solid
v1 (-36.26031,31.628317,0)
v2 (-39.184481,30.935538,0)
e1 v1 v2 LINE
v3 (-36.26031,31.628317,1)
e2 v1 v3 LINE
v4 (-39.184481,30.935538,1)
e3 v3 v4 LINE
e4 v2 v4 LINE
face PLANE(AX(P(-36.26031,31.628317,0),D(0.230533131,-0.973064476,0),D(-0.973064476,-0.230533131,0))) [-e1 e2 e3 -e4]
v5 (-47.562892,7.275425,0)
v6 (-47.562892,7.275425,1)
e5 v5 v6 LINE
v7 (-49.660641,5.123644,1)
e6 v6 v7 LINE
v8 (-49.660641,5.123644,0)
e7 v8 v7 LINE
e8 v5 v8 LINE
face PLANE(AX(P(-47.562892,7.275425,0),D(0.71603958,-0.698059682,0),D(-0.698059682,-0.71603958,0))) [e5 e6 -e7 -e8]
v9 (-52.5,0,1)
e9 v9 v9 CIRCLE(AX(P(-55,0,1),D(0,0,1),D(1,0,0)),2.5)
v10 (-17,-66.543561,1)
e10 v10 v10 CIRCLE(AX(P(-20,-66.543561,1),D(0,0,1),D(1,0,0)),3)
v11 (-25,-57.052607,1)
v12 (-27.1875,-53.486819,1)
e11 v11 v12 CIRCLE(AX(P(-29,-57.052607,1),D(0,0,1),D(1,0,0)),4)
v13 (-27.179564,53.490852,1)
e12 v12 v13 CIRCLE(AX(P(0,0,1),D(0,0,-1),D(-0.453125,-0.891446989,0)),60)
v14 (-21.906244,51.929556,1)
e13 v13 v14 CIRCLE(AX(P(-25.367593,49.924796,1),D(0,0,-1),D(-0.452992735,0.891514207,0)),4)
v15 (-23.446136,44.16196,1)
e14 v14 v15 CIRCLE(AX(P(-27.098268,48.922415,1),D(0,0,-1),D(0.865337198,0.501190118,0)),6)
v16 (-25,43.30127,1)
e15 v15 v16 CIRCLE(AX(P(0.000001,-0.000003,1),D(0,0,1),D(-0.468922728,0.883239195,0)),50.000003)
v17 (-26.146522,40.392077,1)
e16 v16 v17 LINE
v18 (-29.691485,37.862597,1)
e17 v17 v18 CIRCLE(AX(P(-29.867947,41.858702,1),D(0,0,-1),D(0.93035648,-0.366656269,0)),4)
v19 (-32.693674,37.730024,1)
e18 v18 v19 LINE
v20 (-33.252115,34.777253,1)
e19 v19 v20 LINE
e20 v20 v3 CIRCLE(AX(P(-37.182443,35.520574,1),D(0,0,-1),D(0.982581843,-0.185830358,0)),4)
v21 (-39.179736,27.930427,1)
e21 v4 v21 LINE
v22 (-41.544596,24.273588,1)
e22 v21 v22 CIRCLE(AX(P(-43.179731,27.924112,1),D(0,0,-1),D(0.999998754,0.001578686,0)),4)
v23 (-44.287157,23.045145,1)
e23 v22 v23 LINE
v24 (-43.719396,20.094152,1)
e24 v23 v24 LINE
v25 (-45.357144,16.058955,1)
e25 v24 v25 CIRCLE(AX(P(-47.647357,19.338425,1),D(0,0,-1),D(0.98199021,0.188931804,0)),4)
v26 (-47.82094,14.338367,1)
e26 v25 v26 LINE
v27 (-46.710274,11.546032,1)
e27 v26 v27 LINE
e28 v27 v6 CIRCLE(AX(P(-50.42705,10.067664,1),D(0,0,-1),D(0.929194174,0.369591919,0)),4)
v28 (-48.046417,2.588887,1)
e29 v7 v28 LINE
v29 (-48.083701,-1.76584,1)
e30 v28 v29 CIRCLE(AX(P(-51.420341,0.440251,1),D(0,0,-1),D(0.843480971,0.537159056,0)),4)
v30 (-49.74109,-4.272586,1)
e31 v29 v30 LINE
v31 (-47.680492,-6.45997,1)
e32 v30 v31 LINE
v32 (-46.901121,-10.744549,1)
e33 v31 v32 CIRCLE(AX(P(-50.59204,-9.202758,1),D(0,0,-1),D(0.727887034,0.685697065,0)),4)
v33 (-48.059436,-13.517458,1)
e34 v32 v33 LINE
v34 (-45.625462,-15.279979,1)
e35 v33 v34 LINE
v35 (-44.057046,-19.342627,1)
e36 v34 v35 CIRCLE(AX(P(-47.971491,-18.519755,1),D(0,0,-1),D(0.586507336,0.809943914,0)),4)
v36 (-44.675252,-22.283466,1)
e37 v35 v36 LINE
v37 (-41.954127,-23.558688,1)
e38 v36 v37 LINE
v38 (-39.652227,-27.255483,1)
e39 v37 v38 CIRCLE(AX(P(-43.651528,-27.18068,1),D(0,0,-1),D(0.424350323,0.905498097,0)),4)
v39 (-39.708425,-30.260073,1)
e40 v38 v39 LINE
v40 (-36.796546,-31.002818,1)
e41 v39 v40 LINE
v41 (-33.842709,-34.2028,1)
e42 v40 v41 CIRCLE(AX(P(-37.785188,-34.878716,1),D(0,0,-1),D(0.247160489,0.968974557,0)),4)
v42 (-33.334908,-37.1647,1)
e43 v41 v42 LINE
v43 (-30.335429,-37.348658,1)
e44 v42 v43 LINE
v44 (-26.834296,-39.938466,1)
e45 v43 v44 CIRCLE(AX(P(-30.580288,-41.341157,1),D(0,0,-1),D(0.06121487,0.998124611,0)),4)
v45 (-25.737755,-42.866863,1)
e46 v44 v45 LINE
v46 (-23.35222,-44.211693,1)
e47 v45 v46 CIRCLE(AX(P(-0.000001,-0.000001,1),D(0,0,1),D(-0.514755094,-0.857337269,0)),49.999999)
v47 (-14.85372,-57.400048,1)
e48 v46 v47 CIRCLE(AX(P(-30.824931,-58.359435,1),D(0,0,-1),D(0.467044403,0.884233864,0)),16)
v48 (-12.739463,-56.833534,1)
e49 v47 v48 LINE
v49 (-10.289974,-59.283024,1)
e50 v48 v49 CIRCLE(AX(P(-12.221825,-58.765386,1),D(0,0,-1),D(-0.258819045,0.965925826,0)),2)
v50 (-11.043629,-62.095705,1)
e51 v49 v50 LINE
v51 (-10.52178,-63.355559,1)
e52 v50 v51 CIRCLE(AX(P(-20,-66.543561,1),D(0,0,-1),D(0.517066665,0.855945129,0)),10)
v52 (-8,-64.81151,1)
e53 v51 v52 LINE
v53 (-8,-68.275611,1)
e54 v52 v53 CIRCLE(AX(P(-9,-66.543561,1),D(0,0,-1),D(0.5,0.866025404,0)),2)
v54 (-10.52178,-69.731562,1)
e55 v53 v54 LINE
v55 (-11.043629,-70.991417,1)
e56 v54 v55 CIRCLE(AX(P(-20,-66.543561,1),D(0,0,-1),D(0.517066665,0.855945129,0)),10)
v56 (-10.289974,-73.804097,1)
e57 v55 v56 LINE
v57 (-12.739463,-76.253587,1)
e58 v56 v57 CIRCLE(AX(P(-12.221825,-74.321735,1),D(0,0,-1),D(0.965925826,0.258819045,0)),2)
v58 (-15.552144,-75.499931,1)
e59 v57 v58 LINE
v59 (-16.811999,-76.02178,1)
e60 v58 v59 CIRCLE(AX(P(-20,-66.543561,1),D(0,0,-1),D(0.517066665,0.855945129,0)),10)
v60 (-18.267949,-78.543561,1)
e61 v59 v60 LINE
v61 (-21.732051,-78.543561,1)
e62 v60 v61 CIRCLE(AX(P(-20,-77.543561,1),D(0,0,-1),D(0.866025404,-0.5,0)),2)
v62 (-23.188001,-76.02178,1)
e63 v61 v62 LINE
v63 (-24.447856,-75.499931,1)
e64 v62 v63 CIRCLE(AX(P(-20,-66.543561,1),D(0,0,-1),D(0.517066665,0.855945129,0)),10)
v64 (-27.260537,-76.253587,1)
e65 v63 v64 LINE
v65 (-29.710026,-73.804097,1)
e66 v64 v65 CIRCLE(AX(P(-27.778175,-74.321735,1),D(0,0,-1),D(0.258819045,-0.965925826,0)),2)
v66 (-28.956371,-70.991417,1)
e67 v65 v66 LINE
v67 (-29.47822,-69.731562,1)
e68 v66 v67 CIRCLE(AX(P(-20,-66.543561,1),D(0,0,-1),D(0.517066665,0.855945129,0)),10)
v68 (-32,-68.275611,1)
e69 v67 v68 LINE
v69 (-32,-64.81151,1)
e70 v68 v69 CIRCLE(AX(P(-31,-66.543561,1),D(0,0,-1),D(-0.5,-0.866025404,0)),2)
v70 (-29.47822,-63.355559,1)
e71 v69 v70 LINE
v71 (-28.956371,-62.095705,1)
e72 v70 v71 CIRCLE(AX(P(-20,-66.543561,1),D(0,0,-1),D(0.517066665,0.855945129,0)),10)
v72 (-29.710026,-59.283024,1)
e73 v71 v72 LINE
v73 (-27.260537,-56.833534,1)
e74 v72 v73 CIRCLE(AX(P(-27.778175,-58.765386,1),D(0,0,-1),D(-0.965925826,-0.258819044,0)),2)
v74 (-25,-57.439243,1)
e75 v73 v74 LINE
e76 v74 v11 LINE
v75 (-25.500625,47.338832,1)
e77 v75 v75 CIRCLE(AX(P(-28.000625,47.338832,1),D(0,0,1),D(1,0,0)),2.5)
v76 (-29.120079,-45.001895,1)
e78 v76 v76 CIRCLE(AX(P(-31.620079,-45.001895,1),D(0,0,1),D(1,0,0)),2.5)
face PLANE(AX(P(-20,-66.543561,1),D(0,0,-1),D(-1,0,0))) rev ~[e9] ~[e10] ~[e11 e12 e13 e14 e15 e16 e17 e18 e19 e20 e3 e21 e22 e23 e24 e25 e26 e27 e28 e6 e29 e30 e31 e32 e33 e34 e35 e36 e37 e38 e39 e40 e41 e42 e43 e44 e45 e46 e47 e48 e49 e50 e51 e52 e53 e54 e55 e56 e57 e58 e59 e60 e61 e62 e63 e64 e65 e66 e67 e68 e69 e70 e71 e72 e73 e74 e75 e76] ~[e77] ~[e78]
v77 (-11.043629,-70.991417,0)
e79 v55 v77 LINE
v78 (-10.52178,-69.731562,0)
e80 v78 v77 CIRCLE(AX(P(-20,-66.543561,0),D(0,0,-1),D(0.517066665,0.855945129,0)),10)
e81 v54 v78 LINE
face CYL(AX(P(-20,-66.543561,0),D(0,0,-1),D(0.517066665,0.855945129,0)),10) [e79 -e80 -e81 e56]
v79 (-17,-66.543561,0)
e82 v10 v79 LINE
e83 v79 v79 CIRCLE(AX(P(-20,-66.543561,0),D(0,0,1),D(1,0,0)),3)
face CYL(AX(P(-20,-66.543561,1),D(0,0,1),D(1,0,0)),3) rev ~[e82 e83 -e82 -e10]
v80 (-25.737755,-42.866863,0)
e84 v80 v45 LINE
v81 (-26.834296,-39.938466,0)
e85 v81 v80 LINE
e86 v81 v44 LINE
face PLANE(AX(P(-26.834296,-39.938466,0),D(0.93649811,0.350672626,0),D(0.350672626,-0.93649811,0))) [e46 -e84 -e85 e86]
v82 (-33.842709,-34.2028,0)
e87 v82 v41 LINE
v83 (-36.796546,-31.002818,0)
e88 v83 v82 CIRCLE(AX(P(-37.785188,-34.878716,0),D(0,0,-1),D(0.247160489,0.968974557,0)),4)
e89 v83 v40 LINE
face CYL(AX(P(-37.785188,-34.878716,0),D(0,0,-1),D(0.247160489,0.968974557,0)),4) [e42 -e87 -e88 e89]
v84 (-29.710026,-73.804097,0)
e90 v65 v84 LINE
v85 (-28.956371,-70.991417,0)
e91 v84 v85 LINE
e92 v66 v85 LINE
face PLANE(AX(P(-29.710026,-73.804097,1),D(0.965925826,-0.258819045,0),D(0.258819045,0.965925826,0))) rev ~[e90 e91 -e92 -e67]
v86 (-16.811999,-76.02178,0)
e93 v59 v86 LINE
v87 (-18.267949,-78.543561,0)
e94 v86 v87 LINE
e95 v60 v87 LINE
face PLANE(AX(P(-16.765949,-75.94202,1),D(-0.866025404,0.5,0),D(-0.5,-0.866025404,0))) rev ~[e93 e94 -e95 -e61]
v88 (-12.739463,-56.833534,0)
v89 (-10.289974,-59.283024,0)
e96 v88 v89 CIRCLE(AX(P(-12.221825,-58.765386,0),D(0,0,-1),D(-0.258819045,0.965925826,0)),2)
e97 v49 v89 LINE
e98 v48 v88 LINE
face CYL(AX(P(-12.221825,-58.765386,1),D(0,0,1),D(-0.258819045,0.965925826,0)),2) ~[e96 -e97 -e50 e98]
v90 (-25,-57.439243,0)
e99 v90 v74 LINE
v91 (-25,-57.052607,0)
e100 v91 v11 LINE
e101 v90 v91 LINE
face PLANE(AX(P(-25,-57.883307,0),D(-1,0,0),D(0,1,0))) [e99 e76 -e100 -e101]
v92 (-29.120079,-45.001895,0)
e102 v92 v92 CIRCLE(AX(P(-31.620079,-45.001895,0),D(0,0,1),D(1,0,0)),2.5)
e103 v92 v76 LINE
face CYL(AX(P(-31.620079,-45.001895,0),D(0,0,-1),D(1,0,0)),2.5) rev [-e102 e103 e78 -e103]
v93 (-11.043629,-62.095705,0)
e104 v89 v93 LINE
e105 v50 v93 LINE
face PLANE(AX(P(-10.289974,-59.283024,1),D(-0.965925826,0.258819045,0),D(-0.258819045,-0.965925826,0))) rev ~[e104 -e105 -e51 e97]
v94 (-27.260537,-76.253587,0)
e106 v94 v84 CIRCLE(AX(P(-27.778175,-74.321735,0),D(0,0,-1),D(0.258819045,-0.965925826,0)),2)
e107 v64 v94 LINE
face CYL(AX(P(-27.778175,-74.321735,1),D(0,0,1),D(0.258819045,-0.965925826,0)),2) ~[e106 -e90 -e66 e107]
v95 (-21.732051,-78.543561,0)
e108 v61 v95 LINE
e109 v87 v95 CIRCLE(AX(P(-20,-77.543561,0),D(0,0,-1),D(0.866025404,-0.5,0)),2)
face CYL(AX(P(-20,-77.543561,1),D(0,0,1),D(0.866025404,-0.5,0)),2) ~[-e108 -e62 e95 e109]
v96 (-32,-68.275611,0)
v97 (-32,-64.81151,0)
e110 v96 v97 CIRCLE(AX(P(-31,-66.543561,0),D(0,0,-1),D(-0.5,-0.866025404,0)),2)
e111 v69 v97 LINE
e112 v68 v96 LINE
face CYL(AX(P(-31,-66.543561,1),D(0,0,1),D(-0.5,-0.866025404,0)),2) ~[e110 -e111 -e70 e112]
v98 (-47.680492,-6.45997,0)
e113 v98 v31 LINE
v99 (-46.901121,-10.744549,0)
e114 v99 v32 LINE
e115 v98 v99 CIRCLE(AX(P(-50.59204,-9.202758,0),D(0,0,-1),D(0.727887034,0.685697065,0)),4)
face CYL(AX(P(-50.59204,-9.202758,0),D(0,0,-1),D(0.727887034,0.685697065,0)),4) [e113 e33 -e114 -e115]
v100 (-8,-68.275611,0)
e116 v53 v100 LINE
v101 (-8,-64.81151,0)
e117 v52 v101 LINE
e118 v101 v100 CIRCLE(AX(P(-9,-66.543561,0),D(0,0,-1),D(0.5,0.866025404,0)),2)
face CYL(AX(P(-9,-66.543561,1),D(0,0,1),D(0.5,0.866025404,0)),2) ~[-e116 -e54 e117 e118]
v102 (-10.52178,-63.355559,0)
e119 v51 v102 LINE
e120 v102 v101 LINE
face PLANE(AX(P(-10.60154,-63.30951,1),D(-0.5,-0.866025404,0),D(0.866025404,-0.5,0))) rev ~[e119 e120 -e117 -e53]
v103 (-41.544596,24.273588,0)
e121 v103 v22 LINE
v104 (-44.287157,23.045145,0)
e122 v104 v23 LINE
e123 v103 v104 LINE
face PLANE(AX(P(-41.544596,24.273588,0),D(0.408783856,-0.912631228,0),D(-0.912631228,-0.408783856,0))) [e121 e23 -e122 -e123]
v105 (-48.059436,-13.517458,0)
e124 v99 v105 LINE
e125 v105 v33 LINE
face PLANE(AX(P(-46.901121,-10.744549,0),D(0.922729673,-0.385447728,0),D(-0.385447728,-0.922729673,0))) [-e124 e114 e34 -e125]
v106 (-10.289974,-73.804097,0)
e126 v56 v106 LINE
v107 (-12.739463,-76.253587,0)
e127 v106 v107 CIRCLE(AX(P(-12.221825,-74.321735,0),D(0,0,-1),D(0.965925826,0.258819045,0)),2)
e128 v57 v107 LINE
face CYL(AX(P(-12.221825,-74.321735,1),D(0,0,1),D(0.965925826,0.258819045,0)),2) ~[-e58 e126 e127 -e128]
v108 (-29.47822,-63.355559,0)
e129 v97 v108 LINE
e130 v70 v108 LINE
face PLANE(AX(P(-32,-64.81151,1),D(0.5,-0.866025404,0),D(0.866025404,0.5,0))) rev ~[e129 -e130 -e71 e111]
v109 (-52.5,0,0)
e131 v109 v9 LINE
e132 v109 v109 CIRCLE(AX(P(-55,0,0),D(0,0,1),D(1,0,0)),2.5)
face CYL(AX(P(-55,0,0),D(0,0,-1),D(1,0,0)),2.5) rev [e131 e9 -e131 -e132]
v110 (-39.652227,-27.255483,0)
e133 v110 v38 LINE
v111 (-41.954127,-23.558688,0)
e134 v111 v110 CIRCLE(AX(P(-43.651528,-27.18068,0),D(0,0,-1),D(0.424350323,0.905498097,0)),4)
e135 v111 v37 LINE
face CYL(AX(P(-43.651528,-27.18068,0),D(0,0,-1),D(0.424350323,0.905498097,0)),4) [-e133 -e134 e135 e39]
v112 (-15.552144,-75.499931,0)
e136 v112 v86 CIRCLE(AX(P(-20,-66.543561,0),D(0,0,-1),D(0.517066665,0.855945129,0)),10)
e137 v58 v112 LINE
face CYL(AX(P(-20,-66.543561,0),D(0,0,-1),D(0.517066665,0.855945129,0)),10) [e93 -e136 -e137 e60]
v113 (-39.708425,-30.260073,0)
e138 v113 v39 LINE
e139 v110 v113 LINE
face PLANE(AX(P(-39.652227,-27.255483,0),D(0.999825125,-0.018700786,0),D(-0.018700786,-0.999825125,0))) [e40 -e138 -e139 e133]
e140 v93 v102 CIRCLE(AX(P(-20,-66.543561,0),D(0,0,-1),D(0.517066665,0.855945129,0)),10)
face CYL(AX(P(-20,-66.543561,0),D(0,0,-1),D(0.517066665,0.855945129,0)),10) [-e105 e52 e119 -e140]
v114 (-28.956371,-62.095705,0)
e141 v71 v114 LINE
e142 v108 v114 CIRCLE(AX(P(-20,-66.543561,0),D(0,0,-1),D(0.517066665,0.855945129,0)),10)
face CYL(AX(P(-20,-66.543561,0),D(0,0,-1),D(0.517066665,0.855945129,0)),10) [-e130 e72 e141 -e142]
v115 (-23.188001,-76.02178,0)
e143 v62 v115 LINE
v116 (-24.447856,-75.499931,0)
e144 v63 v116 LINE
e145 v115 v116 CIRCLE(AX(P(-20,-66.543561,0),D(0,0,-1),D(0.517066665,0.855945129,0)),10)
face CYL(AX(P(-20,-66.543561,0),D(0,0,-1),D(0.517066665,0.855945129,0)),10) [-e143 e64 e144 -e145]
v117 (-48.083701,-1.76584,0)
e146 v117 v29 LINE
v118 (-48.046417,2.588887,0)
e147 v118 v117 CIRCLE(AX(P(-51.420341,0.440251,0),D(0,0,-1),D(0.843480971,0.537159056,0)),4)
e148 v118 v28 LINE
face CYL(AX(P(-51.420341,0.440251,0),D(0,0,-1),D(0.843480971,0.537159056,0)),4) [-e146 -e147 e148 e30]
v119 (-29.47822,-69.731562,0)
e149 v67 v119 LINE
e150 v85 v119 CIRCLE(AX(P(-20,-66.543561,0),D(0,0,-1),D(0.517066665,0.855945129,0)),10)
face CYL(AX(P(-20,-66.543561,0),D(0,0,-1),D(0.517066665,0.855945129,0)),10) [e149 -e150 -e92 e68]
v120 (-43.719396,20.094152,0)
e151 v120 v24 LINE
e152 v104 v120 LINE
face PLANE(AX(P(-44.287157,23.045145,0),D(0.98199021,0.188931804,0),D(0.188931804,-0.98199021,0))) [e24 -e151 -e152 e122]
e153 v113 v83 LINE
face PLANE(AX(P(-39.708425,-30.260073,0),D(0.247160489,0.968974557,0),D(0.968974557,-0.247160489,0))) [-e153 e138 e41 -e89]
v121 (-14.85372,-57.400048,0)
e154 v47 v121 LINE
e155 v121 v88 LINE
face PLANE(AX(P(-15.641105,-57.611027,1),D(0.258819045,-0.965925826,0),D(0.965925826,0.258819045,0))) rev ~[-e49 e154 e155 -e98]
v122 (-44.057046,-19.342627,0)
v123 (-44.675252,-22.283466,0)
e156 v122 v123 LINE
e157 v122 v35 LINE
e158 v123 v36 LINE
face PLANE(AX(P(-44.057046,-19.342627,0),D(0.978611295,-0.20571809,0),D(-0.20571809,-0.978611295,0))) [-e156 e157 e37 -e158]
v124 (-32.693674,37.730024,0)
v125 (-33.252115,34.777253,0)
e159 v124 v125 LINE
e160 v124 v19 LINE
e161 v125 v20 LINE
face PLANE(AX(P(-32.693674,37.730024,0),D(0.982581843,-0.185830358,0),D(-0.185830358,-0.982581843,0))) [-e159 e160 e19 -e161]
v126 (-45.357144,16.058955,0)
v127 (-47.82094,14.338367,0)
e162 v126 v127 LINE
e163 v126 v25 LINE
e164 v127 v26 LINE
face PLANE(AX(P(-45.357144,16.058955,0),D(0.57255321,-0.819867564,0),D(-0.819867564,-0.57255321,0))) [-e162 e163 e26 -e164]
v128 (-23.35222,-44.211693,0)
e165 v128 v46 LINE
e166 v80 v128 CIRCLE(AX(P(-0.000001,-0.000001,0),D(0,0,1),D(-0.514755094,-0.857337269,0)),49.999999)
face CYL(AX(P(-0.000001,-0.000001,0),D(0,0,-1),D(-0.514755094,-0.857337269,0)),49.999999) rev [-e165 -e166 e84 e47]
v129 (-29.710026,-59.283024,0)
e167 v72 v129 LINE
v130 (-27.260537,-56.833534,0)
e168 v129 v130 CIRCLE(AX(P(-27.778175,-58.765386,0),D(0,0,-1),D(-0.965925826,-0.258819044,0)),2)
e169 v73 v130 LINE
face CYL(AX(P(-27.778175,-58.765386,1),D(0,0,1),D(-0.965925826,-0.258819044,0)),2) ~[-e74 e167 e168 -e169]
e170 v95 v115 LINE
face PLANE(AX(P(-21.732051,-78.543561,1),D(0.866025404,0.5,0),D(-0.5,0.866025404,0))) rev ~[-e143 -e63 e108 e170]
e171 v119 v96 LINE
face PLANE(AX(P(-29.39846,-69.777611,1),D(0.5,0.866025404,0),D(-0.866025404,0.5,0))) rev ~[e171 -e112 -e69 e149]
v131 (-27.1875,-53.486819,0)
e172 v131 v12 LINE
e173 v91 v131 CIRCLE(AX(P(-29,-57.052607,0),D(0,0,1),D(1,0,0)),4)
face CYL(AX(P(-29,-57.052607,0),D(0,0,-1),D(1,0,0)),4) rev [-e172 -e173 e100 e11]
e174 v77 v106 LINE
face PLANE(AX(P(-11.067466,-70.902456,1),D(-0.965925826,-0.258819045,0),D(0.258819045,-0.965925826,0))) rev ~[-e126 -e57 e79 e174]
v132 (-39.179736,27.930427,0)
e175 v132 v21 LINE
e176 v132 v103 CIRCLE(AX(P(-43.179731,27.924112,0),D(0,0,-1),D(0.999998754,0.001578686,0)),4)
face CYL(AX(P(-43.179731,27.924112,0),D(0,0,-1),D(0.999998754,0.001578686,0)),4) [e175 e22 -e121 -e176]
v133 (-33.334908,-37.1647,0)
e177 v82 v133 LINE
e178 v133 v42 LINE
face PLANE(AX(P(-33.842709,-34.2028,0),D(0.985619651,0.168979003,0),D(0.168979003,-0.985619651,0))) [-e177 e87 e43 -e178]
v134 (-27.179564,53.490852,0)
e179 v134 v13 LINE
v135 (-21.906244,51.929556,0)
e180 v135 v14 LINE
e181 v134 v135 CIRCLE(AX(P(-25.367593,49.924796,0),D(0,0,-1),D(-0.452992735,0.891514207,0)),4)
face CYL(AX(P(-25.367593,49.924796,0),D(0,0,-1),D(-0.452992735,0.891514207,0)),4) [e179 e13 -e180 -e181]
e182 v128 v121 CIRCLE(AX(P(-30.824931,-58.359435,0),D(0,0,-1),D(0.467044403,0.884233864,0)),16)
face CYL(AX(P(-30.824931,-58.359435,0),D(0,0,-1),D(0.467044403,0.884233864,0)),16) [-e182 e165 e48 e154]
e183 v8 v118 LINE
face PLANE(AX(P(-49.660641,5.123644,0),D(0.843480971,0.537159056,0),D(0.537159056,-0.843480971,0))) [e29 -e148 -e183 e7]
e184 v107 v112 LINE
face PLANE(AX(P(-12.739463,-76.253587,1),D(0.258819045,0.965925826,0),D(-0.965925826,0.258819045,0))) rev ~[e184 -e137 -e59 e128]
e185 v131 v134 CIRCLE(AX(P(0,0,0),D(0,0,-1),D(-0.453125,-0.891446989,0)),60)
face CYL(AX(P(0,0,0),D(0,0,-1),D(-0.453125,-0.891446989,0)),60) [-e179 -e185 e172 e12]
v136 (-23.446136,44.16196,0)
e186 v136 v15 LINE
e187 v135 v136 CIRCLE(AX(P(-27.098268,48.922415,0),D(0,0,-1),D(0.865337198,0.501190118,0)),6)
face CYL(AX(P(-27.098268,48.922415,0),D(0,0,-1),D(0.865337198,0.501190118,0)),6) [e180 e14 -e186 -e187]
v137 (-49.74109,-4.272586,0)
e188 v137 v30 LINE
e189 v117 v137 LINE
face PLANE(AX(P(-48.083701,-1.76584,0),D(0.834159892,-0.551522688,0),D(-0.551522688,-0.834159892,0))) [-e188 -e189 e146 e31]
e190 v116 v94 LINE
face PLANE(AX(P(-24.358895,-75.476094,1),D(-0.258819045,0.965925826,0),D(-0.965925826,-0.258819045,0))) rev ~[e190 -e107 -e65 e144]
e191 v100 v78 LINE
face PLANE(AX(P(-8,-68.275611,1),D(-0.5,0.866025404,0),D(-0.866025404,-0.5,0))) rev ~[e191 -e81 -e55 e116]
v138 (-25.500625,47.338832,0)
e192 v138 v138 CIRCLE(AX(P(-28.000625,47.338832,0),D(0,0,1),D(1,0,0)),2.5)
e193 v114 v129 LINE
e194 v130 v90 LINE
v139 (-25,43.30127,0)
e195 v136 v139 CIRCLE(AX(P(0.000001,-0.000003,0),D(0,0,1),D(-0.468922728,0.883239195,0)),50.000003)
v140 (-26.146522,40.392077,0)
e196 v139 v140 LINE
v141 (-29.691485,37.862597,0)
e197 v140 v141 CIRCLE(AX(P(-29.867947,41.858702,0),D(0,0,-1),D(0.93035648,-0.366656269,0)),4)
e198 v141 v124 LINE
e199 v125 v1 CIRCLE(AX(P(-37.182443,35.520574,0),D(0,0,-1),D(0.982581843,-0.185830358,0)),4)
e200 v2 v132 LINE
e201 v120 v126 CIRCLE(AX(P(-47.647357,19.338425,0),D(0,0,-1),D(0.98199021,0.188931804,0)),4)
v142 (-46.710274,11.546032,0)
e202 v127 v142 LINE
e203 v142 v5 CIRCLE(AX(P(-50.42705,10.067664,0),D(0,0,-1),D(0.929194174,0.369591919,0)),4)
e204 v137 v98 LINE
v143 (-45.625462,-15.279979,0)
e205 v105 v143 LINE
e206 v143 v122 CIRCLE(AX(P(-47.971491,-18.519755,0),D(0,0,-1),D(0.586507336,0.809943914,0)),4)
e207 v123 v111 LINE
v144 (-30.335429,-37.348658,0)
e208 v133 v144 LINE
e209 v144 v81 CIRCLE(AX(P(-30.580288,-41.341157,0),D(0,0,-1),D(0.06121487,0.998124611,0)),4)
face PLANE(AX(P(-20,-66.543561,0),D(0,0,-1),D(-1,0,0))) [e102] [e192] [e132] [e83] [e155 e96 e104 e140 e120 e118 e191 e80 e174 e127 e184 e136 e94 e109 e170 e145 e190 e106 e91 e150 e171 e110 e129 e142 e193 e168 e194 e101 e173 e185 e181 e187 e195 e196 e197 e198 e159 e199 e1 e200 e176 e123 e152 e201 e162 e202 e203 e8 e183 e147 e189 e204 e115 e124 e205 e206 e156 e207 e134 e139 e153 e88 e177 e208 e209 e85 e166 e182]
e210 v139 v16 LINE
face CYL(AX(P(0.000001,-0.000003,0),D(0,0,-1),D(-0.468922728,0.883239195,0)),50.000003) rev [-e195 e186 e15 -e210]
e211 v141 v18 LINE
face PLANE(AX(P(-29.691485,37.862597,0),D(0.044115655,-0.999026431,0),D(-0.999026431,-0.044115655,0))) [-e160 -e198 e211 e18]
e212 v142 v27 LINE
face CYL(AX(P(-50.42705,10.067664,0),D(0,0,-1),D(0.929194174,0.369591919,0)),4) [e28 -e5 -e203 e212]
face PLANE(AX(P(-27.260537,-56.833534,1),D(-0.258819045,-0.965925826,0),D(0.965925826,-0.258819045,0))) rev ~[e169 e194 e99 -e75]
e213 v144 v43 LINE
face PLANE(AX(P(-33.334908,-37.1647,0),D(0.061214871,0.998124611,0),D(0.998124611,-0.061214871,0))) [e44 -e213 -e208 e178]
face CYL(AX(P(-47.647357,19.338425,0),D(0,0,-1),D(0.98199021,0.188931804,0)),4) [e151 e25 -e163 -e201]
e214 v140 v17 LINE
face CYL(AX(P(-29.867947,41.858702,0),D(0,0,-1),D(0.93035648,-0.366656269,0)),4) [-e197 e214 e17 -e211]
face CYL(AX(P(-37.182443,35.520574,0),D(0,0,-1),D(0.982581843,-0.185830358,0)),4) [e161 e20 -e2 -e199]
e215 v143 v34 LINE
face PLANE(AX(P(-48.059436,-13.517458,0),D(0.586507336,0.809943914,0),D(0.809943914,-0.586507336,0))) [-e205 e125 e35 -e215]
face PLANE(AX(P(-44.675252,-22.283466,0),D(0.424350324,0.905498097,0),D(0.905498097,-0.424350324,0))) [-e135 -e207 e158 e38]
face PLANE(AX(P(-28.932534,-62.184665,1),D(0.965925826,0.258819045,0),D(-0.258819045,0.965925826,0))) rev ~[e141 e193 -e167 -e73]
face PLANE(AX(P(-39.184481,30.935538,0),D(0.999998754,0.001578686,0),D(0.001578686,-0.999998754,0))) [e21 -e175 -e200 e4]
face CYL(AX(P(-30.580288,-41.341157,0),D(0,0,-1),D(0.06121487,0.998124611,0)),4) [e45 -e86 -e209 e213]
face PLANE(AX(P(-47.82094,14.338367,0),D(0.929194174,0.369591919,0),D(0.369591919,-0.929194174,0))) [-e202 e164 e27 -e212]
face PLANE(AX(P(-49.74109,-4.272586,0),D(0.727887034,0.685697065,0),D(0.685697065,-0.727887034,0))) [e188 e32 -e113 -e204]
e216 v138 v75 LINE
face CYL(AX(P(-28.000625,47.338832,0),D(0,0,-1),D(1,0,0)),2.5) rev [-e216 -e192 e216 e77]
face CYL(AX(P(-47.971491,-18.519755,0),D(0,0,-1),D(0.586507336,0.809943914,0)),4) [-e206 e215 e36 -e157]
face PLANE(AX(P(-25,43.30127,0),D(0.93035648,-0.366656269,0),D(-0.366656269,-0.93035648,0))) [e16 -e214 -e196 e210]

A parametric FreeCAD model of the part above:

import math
import FreeCAD as App
import Part
import Sketcher
from FreeCAD import Vector
Q = App.Units.Quantity

doc = App.newDocument("Part")
params = doc.addObject("Spreadsheet::Sheet", "Params")
for row, (alias, value) in enumerate([
    ("sketch1_diameter", "10 mm"),
    ("sketch1_diameter2", "5 mm"),
    ("sketch1_radius", "6 mm"),
    ("sketch1_radius2", "4 mm"),
    ("sketch1_radius3", "60 mm"),
    ("pad1_length", "1 mm"),
    ("sketch2_diameter", "6 mm"),
    ("sketch2_radius", "2 mm"),
    ("sketch2_radius2", "1 mm"),
    ("pad2_length", "1 mm"),
], start=1):
    params.set(f"A{row}", alias)
    params.set(f"B{row}", "=" + value)
    params.setAlias(f"B{row}", alias)

body = doc.addObject("PartDesign::Body", "Body")

# Sketch on XY plane
sketch1 = body.newObject("Sketcher::SketchObject", "Sketch")
sketch1.AttachmentSupport = (doc.getObject("XY_Plane"), [""])
sketch1.MapMode = "FlatFace"
sketch1.addGeometry([
    Part.LineSegment(Vector(-26.1, 40.4, 0), Vector(-25, 43.3, 0)),  # 0
    Part.ArcOfCircle(Part.Circle(Vector(0, 0, 0), Vector(0, 0, 1), 50), math.radians(117.96), math.radians(120)),  # 1
    Part.ArcOfCircle(Part.Circle(Vector(-27.1, 48.9, 0), Vector(0, 0, 1), 6), math.radians(-53), math.radians(30)),  # 2
    Part.ArcOfCircle(Part.Circle(Vector(-25.4, 49.9, 0), Vector(0, 0, 1), 4), math.radians(30), math.radians(117)),  # 3
    Part.ArcOfCircle(Part.Circle(Vector(0, 0, 0), Vector(0, 0, 1), 60), math.radians(117), math.radians(243)),  # 4
    Part.ArcOfCircle(Part.Circle(Vector(-29, -57.1, 0), Vector(0, 0, 1), 4), math.radians(0), math.radians(63)),  # 5
    Part.LineSegment(Vector(-25, -57.1, 0), Vector(-25, -57.9, 0)),  # 6
    Part.ArcOfCircle(Part.Circle(Vector(-20, -66.5, 0), Vector(0, 0, 1), 10), math.radians(120), math.radians(419)),  # 7
    Part.ArcOfCircle(Part.Circle(Vector(-30.8, -58.4, 0), Vector(0, 0, 1), 16), math.radians(1), math.radians(62)),  # 8
    Part.ArcOfCircle(Part.Circle(Vector(0, 0, 0), Vector(0, 0, 1), 50), math.radians(-120.98), math.radians(-117.84)),  # 9
    Part.LineSegment(Vector(-25.7, -42.9, 0), Vector(-26.8, -39.9, 0)),  # 10
    Part.ArcOfCircle(Part.Circle(Vector(-30.6, -41.3, 0), Vector(0, 0, 1), 4), math.radians(21), math.radians(86)),  # 11
    Part.LineSegment(Vector(-30.3, -37.3, 0), Vector(-33.3, -37.2, 0)),  # 12
    Part.LineSegment(Vector(-33.3, -37.2, 0), Vector(-33.8, -34.2, 0)),  # 13
    Part.ArcOfCircle(Part.Circle(Vector(-37.8, -34.9, 0), Vector(0, 0, 1), 4), math.radians(10), math.radians(76)),  # 14
    Part.LineSegment(Vector(-36.8, -31, 0), Vector(-39.7, -30.3, 0)),  # 15
    Part.LineSegment(Vector(-39.7, -30.3, 0), Vector(-39.7, -27.3, 0)),  # 16
    Part.ArcOfCircle(Part.Circle(Vector(-43.7, -27.2, 0), Vector(0, 0, 1), 4), math.radians(-1), math.radians(65)),  # 17
    Part.LineSegment(Vector(-42, -23.6, 0), Vector(-44.7, -22.3, 0)),  # 18
    Part.LineSegment(Vector(-44.7, -22.3, 0), Vector(-44.1, -19.3, 0)),  # 19
    Part.ArcOfCircle(Part.Circle(Vector(-48, -18.5, 0), Vector(0, 0, 1), 4), math.radians(-12), math.radians(54)),  # 20
    Part.LineSegment(Vector(-45.6, -15.3, 0), Vector(-48.1, -13.5, 0)),  # 21
    Part.LineSegment(Vector(-48.1, -13.5, 0), Vector(-46.9, -10.7, 0)),  # 22
    Part.ArcOfCircle(Part.Circle(Vector(-50.6, -9.2, 0), Vector(0, 0, 1), 4), math.radians(-23), math.radians(43)),  # 23
    Part.LineSegment(Vector(-47.7, -6.5, 0), Vector(-49.7, -4.3, 0)),  # 24
    Part.LineSegment(Vector(-49.7, -4.3, 0), Vector(-48.1, -1.8, 0)),  # 25
    Part.ArcOfCircle(Part.Circle(Vector(-51.4, 0.4, 0), Vector(0, 0, 1), 4), math.radians(-33), math.radians(32)),  # 26
    Part.LineSegment(Vector(-48, 2.6, 0), Vector(-49.7, 5.1, 0)),  # 27
    Part.LineSegment(Vector(-49.7, 5.1, 0), Vector(-47.6, 7.3, 0)),  # 28
    Part.ArcOfCircle(Part.Circle(Vector(-50.4, 10.1, 0), Vector(0, 0, 1), 4), math.radians(-44), math.radians(22)),  # 29
    Part.LineSegment(Vector(-46.7, 11.5, 0), Vector(-47.8, 14.3, 0)),  # 30
    Part.LineSegment(Vector(-47.8, 14.3, 0), Vector(-45.4, 16.1, 0)),  # 31
    Part.ArcOfCircle(Part.Circle(Vector(-47.6, 19.3, 0), Vector(0, 0, 1), 4), math.radians(-55), math.radians(11)),  # 32
    Part.LineSegment(Vector(-43.7, 20.1, 0), Vector(-44.3, 23, 0)),  # 33
    Part.LineSegment(Vector(-44.3, 23, 0), Vector(-41.5, 24.3, 0)),  # 34
    Part.ArcOfCircle(Part.Circle(Vector(-43.2, 27.9, 0), Vector(0, 0, 1), 4), math.radians(-66), math.radians(0)),  # 35
    Part.LineSegment(Vector(-39.2, 27.9, 0), Vector(-39.2, 30.9, 0)),  # 36
    Part.LineSegment(Vector(-39.2, 30.9, 0), Vector(-36.3, 31.6, 0)),  # 37
    Part.ArcOfCircle(Part.Circle(Vector(-37.2, 35.5, 0), Vector(0, 0, 1), 4), math.radians(-77), math.radians(-11)),  # 38
    Part.LineSegment(Vector(-33.3, 34.8, 0), Vector(-32.7, 37.7, 0)),  # 39
    Part.LineSegment(Vector(-32.7, 37.7, 0), Vector(-29.7, 37.9, 0)),  # 40
    Part.ArcOfCircle(Part.Circle(Vector(-29.9, 41.9, 0), Vector(0, 0, 1), 4), math.radians(-87), math.radians(-22)),  # 41
    Part.Circle(Vector(-20, -66.5, 0), Vector(0, 0, 1), 5),  # 42
    Part.Circle(Vector(-31.6, -45, 0), Vector(0, 0, 1), 2.5),  # 43
    Part.Circle(Vector(-28, 47.3, 0), Vector(0, 0, 1), 2.5),  # 44
    Part.Circle(Vector(-55, 0, 0), Vector(0, 0, 1), 2.5),  # 45
], False)
sketch1.addConstraint([
    Sketcher.Constraint("Coincident", 0, 2, 1, 2),
    Sketcher.Constraint("Coincident", 1, 1, 2, 1),
    Sketcher.Constraint("Tangent", 2, 2, 3, 1),
    Sketcher.Constraint("Tangent", 3, 2, 4, 1),
    Sketcher.Constraint("Tangent", 4, 2, 5, 2),
    Sketcher.Constraint("Tangent", 5, 1, 6, 1),
    Sketcher.Constraint("Coincident", 6, 2, 7, 1),
    Sketcher.Constraint("Coincident", 7, 2, 8, 1),
    Sketcher.Constraint("Tangent", 8, 2, 9, 2),
    Sketcher.Constraint("Coincident", 9, 1, 10, 1),
    Sketcher.Constraint("Tangent", 10, 2, 11, 1),
    Sketcher.Constraint("Tangent", 11, 2, 12, 1),
    Sketcher.Constraint("Coincident", 12, 2, 13, 1),
    Sketcher.Constraint("Tangent", 13, 2, 14, 1),
    Sketcher.Constraint("Tangent", 14, 2, 15, 1),
    Sketcher.Constraint("Coincident", 15, 2, 16, 1),
    Sketcher.Constraint("Tangent", 16, 2, 17, 1),
    Sketcher.Constraint("Tangent", 17, 2, 18, 1),
    Sketcher.Constraint("Coincident", 18, 2, 19, 1),
    Sketcher.Constraint("Tangent", 19, 2, 20, 1),
    Sketcher.Constraint("Tangent", 20, 2, 21, 1),
    Sketcher.Constraint("Coincident", 21, 2, 22, 1),
    Sketcher.Constraint("Tangent", 22, 2, 23, 1),
    Sketcher.Constraint("Tangent", 23, 2, 24, 1),
    Sketcher.Constraint("Coincident", 24, 2, 25, 1),
    Sketcher.Constraint("Tangent", 25, 2, 26, 1),
    Sketcher.Constraint("Tangent", 26, 2, 27, 1),
    Sketcher.Constraint("Coincident", 27, 2, 28, 1),
    Sketcher.Constraint("Tangent", 28, 2, 29, 1),
    Sketcher.Constraint("Tangent", 29, 2, 30, 1),
    Sketcher.Constraint("Coincident", 30, 2, 31, 1),
    Sketcher.Constraint("Tangent", 31, 2, 32, 1),
    Sketcher.Constraint("Tangent", 32, 2, 33, 1),
    Sketcher.Constraint("Coincident", 33, 2, 34, 1),
    Sketcher.Constraint("Tangent", 34, 2, 35, 1),
    Sketcher.Constraint("Tangent", 35, 2, 36, 1),
    Sketcher.Constraint("Coincident", 36, 2, 37, 1),
    Sketcher.Constraint("Tangent", 37, 2, 38, 1),
    Sketcher.Constraint("Tangent", 38, 2, 39, 1),
    Sketcher.Constraint("Coincident", 39, 2, 40, 1),
    Sketcher.Constraint("Tangent", 40, 2, 41, 1),
    Sketcher.Constraint("Tangent", 41, 2, 0, 1),
    Sketcher.Constraint("Vertical", 6),
    Sketcher.Constraint("Coincident", 1, 3, -1, 1),
    Sketcher.Constraint("Coincident", 4, 3, -1, 1),
    Sketcher.Constraint("Coincident", 9, 3, -1, 1),
    Sketcher.Constraint("Coincident", 42, 3, 7, 3),
    Sketcher.Constraint("Equal", 3, 5),
    Sketcher.Constraint("Equal", 5, 11),
    Sketcher.Constraint("Equal", 11, 14),
    Sketcher.Constraint("Equal", 14, 17),
    Sketcher.Constraint("Equal", 17, 20),
    Sketcher.Constraint("Equal", 20, 23),
    Sketcher.Constraint("Equal", 23, 26),
    Sketcher.Constraint("Equal", 26, 29),
    Sketcher.Constraint("Equal", 29, 32),
    Sketcher.Constraint("Equal", 32, 35),
    Sketcher.Constraint("Equal", 35, 38),
    Sketcher.Constraint("Equal", 38, 41),
    Sketcher.Constraint("Equal", 43, 44),
    Sketcher.Constraint("Equal", 44, 45),
    Sketcher.Constraint("PointOnObject", 45, 3, -1),
    Sketcher.Constraint("Vertical", 0, 2, 5, 1),
    Sketcher.Constraint("Equal", 0, 10),
    Sketcher.Constraint("Equal", 12, 13),
    Sketcher.Constraint("Equal", 13, 15),
    Sketcher.Constraint("Equal", 15, 16),
    Sketcher.Constraint("Equal", 16, 18),
    Sketcher.Constraint("Equal", 18, 19),
    Sketcher.Constraint("Equal", 19, 21),
    Sketcher.Constraint("Equal", 21, 22),
    Sketcher.Constraint("Equal", 22, 24),
    Sketcher.Constraint("Equal", 24, 25),
    Sketcher.Constraint("Equal", 25, 27),
    Sketcher.Constraint("Equal", 27, 28),
    Sketcher.Constraint("Equal", 28, 30),
    Sketcher.Constraint("Equal", 30, 31),
    Sketcher.Constraint("Equal", 31, 33),
    Sketcher.Constraint("Equal", 33, 34),
    Sketcher.Constraint("Equal", 34, 36),
    Sketcher.Constraint("Equal", 36, 37),
    Sketcher.Constraint("Equal", 37, 39),
    Sketcher.Constraint("Equal", 39, 40),
    Sketcher.Constraint("Diameter", 42, Q("10 mm")),
    Sketcher.Constraint("Diameter", 43, Q("5 mm")),
    Sketcher.Constraint("Radius", 2, Q("6 mm")),
    Sketcher.Constraint("Radius", 3, Q("4 mm")),
    Sketcher.Constraint("Radius", 4, Q("60 mm")),
    Sketcher.Constraint("Radius", 7, Q("10 mm")),
    Sketcher.Constraint("Radius", 8, Q("16 mm")),
    Sketcher.Constraint("Radius", 9, Q("49.999999 mm")),
    Sketcher.Constraint("DistanceX", 5, 3, -1, 1, Q("29 mm")),
    Sketcher.Constraint("DistanceX", 7, 3, -1, 1, Q("20 mm")),
    Sketcher.Constraint("DistanceX", 45, 3, -1, 1, Q("55 mm")),
    Sketcher.Constraint("DistanceY", 6, 2, 6, 1, Q("0.830699 mm")),
    Sketcher.Constraint("Radius", 1, Q("50.000003 mm")),
    Sketcher.Constraint("DistanceY", 12, 2, -1, 1, Q("37.1647 mm")),
    Sketcher.Constraint("DistanceY", 13, 2, -1, 1, Q("34.2028 mm")),
    Sketcher.Constraint("DistanceX", 25, 2, -1, 1, Q("48.083701 mm")),
    Sketcher.Constraint("DistanceX", 8, 3, -1, 1, Q("30.824931 mm")),
    Sketcher.Constraint("DistanceX", 11, 3, -1, 1, Q("30.580288 mm")),
    Sketcher.Constraint("DistanceY", 17, 3, -1, 1, Q("27.18068 mm")),
    Sketcher.Constraint("DistanceX", 20, 3, -1, 1, Q("47.971491 mm")),
    Sketcher.Constraint("DistanceX", 23, 3, -1, 1, Q("50.59204 mm")),
    Sketcher.Constraint("DistanceY", 23, 3, -1, 1, Q("9.202758 mm")),
    Sketcher.Constraint("DistanceX", 26, 3, -1, 1, Q("51.420341 mm")),
    Sketcher.Constraint("DistanceY", -1, 1, 26, 3, Q("0.440251 mm")),
    Sketcher.Constraint("DistanceX", 29, 3, -1, 1, Q("50.42705 mm")),
    Sketcher.Constraint("DistanceX", 35, 3, -1, 1, Q("43.179731 mm")),
    Sketcher.Constraint("DistanceX", 43, 3, -1, 1, Q("31.620079 mm")),
    Sketcher.Constraint("DistanceY", -1, 1, 44, 3, Q("47.338832 mm")),
    Sketcher.Constraint("DistanceY", -1, 1, 1, 1, Q("44.16196 mm")),
    Sketcher.Constraint("DistanceX", 11, 2, -1, 1, Q("30.335429 mm")),
    Sketcher.Constraint("DistanceY", 14, 2, -1, 1, Q("31.002818 mm")),
    Sketcher.Constraint("DistanceX", 20, 2, -1, 1, Q("45.625462 mm")),
    Sketcher.Constraint("DistanceX", 27, 2, -1, 1, Q("49.660641 mm")),
    Sketcher.Constraint("DistanceY", -1, 1, 29, 2, Q("11.546032 mm")),
    Sketcher.Constraint("DistanceX", 36, 2, -1, 1, Q("39.184481 mm")),
    Sketcher.Constraint("DistanceY", -1, 1, 36, 2, Q("30.935538 mm")),
    Sketcher.Constraint("DistanceX", 37, 2, -1, 1, Q("36.26031 mm")),
    Sketcher.Constraint("DistanceX", 41, 2, -1, 1, Q("26.146522 mm")),
    Sketcher.Constraint("Distance", 0, Q("3.126966 mm")),
    Sketcher.Constraint("DistanceX", 2, 3, -1, 1, Q("27.098268 mm")),
    Sketcher.Constraint("DistanceX", 32, 3, -1, 1, Q("47.647357 mm")),
    Sketcher.Constraint("DistanceY", 43, 3, -1, 1, Q("45.001895 mm")),
    Sketcher.Constraint("DistanceX", 44, 3, -1, 1, Q("28.000625 mm")),
])
sketch1.setExpression("Constraints[83]", "Params.sketch1_diameter")
sketch1.setExpression("Constraints[84]", "Params.sketch1_diameter2")
sketch1.setExpression("Constraints[85]", "Params.sketch1_radius")
sketch1.setExpression("Constraints[86]", "Params.sketch1_radius2")
sketch1.setExpression("Constraints[87]", "Params.sketch1_radius3")
pad1 = body.newObject("PartDesign::Pad", "Pad")
pad1.Profile = sketch1
pad1.setExpression("Length", "Params.pad1_length")

# Sketch on XY plane
sketch2 = body.newObject("Sketcher::SketchObject", "Sketch001")
sketch2.AttachmentSupport = (doc.getObject("XY_Plane"), [""])
sketch2.MapMode = "FlatFace"
sketch2.AttachmentOffset = App.Placement(Vector(0, 0, 1), App.Rotation())
sketch2.addGeometry([
    Part.LineSegment(Vector(-10.6, -69.8, 0), Vector(-8, -68.3, 0)),  # 0
    Part.ArcOfCircle(Part.Circle(Vector(-9, -66.5, 0), Vector(0, 0, 1), 2), math.radians(-60), math.radians(60)),  # 1
    Part.LineSegment(Vector(-8, -64.8, 0), Vector(-10.6, -63.3, 0)),  # 2
    Part.ArcOfCircle(Part.Circle(Vector(-10.1, -62.4, 0), Vector(0, 0, 1), 1), math.radians(165), math.radians(240)),  # 3
    Part.LineSegment(Vector(-11.1, -62.2, 0), Vector(-10.3, -59.3, 0)),  # 4
    Part.ArcOfCircle(Part.Circle(Vector(-12.2, -58.8, 0), Vector(0, 0, 1), 2), math.radians(-15), math.radians(105)),  # 5
    Part.LineSegment(Vector(-12.7, -56.8, 0), Vector(-15.6, -57.6, 0)),  # 6
    Part.ArcOfCircle(Part.Circle(Vector(-15.9, -56.6, 0), Vector(0, 0, 1), 1), math.radians(-150), math.radians(-75)),  # 7
    Part.LineSegment(Vector(-16.8, -57.1, 0), Vector(-18.3, -54.5, 0)),  # 8
    Part.ArcOfCircle(Part.Circle(Vector(-20, -55.5, 0), Vector(0, 0, 1), 2), math.radians(30), math.radians(150)),  # 9
    Part.LineSegment(Vector(-21.7, -54.5, 0), Vector(-23.2, -57.1, 0)),  # 10
    Part.ArcOfCircle(Part.Circle(Vector(-24.1, -56.6, 0), Vector(0, 0, 1), 1), math.radians(-105), math.radians(-30)),  # 11
    Part.LineSegment(Vector(-24.4, -57.6, 0), Vector(-27.3, -56.8, 0)),  # 12
    Part.ArcOfCircle(Part.Circle(Vector(-27.8, -58.8, 0), Vector(0, 0, 1), 2), math.radians(75), math.radians(195)),  # 13
    Part.LineSegment(Vector(-29.7, -59.3, 0), Vector(-28.9, -62.2, 0)),  # 14
    Part.ArcOfCircle(Part.Circle(Vector(-29.9, -62.4, 0), Vector(0, 0, 1), 1), math.radians(-60), math.radians(15)),  # 15
    Part.LineSegment(Vector(-29.4, -63.3, 0), Vector(-32, -64.8, 0)),  # 16
    Part.ArcOfCircle(Part.Circle(Vector(-31, -66.5, 0), Vector(0, 0, 1), 2), math.radians(120), math.radians(240)),  # 17
    Part.LineSegment(Vector(-32, -68.3, 0), Vector(-29.4, -69.8, 0)),  # 18
    Part.ArcOfCircle(Part.Circle(Vector(-29.9, -70.6, 0), Vector(0, 0, 1), 1), math.radians(-15), math.radians(60)),  # 19
    Part.LineSegment(Vector(-28.9, -70.9, 0), Vector(-29.7, -73.8, 0)),  # 20
    Part.ArcOfCircle(Part.Circle(Vector(-27.8, -74.3, 0), Vector(0, 0, 1), 2), math.radians(165), math.radians(285)),  # 21
    Part.LineSegment(Vector(-27.3, -76.3, 0), Vector(-24.4, -75.5, 0)),  # 22
    Part.ArcOfCircle(Part.Circle(Vector(-24.1, -76.4, 0), Vector(0, 0, 1), 1), math.radians(30), math.radians(105)),  # 23
    Part.LineSegment(Vector(-23.2, -75.9, 0), Vector(-21.7, -78.5, 0)),  # 24
    Part.ArcOfCircle(Part.Circle(Vector(-20, -77.5, 0), Vector(0, 0, 1), 2), math.radians(-150), math.radians(-30)),  # 25
    Part.LineSegment(Vector(-18.3, -78.5, 0), Vector(-16.8, -75.9, 0)),  # 26
    Part.ArcOfCircle(Part.Circle(Vector(-15.9, -76.4, 0), Vector(0, 0, 1), 1), math.radians(75), math.radians(150)),  # 27
    Part.LineSegment(Vector(-15.6, -75.5, 0), Vector(-12.7, -76.3, 0)),  # 28
    Part.ArcOfCircle(Part.Circle(Vector(-12.2, -74.3, 0), Vector(0, 0, 1), 2), math.radians(-105), math.radians(15)),  # 29
    Part.LineSegment(Vector(-10.3, -73.8, 0), Vector(-11.1, -70.9, 0)),  # 30
    Part.ArcOfCircle(Part.Circle(Vector(-10.1, -70.6, 0), Vector(0, 0, 1), 1), math.radians(120), math.radians(195)),  # 31
    Part.Circle(Vector(-20, -66.5, 0), Vector(0, 0, 1), 3),  # 32
], False)
sketch2.addConstraint([
    Sketcher.Constraint("Tangent", 0, 2, 1, 1),
    Sketcher.Constraint("Tangent", 1, 2, 2, 1),
    Sketcher.Constraint("Tangent", 2, 2, 3, 2),
    Sketcher.Constraint("Tangent", 3, 1, 4, 1),
    Sketcher.Constraint("Tangent", 4, 2, 5, 1),
    Sketcher.Constraint("Tangent", 5, 2, 6, 1),
    Sketcher.Constraint("Tangent", 6, 2, 7, 2),
    Sketcher.Constraint("Tangent", 7, 1, 8, 1),
    Sketcher.Constraint("Tangent", 8, 2, 9, 1),
    Sketcher.Constraint("Tangent", 9, 2, 10, 1),
    Sketcher.Constraint("Tangent", 10, 2, 11, 2),
    Sketcher.Constraint("Tangent", 11, 1, 12, 1),
    Sketcher.Constraint("Tangent", 12, 2, 13, 1),
    Sketcher.Constraint("Tangent", 13, 2, 14, 1),
    Sketcher.Constraint("Tangent", 14, 2, 15, 2),
    Sketcher.Constraint("Tangent", 15, 1, 16, 1),
    Sketcher.Constraint("Tangent", 16, 2, 17, 1),
    Sketcher.Constraint("Tangent", 17, 2, 18, 1),
    Sketcher.Constraint("Tangent", 18, 2, 19, 2),
    Sketcher.Constraint("Tangent", 19, 1, 20, 1),
    Sketcher.Constraint("Tangent", 20, 2, 21, 1),
    Sketcher.Constraint("Tangent", 21, 2, 22, 1),
    Sketcher.Constraint("Tangent", 22, 2, 23, 2),
    Sketcher.Constraint("Tangent", 23, 1, 24, 1),
    Sketcher.Constraint("Tangent", 24, 2, 25, 1),
    Sketcher.Constraint("Tangent", 25, 2, 26, 1),
    Sketcher.Constraint("Tangent", 26, 2, 27, 2),
    Sketcher.Constraint("Tangent", 27, 1, 28, 1),
    Sketcher.Constraint("Tangent", 28, 2, 29, 1),
    Sketcher.Constraint("Tangent", 29, 2, 30, 1),
    Sketcher.Constraint("Tangent", 30, 2, 31, 2),
    Sketcher.Constraint("Tangent", 31, 1, 0, 1),
    Sketcher.Constraint("Equal", 1, 5),
    Sketcher.Constraint("Equal", 3, 7),
    Sketcher.Constraint("Equal", 5, 9),
    Sketcher.Constraint("Equal", 7, 11),
    Sketcher.Constraint("Equal", 9, 13),
    Sketcher.Constraint("Equal", 11, 15),
    Sketcher.Constraint("Equal", 13, 17),
    Sketcher.Constraint("Equal", 15, 19),
    Sketcher.Constraint("Equal", 17, 21),
    Sketcher.Constraint("Equal", 19, 23),
    Sketcher.Constraint("Equal", 21, 25),
    Sketcher.Constraint("Equal", 23, 27),
    Sketcher.Constraint("Equal", 25, 29),
    Sketcher.Constraint("Equal", 27, 31),
    Sketcher.Constraint("Perpendicular", 0, 8),
    Sketcher.Constraint("Perpendicular", 2, 10),
    Sketcher.Constraint("Perpendicular", 4, 12),
    Sketcher.Constraint("Perpendicular", 6, 14),
    Sketcher.Constraint("Perpendicular", 8, 16),
    Sketcher.Constraint("Perpendicular", 10, 18),
    Sketcher.Constraint("Perpendicular", 12, 20),
    Sketcher.Constraint("Perpendicular", 14, 22),
    Sketcher.Constraint("Perpendicular", 16, 24),
    Sketcher.Constraint("Perpendicular", 18, 26),
    Sketcher.Constraint("Perpendicular", 20, 28),
    Sketcher.Constraint("Perpendicular", 22, 30),
    Sketcher.Constraint("Horizontal", 7, 3, 11, 3),
    Sketcher.Constraint("Horizontal", 5, 3, 13, 3),
    Sketcher.Constraint("Horizontal", 3, 3, 15, 3),
    Sketcher.Constraint("Horizontal", 1, 3, 17, 3),
    Sketcher.Constraint("Horizontal", 23, 3, 27, 3),
    Sketcher.Constraint("Horizontal", 21, 3, 29, 3),
    Sketcher.Constraint("Horizontal", 19, 3, 31, 3),
    Sketcher.Constraint("Horizontal", 17, 3, 32, 3),
    Sketcher.Constraint("Horizontal", 8, 2, 9, 2),
    Sketcher.Constraint("Horizontal", 6, 2, 11, 1),
    Sketcher.Constraint("Vertical", 15, 3, 19, 3),
    Sketcher.Constraint("Vertical", 13, 3, 21, 3),
    Sketcher.Constraint("Vertical", 11, 3, 23, 3),
    Sketcher.Constraint("Vertical", 25, 3, 32, 3),
    Sketcher.Constraint("Equal", 2, 4),
    Sketcher.Constraint("Equal", 4, 6),
    Sketcher.Constraint("Equal", 6, 8),
    Sketcher.Constraint("Diameter", 32, Q("6 mm")),
    Sketcher.Constraint("Radius", 1, Q("2 mm")),
    Sketcher.Constraint("Radius", 3, Q("1 mm")),
    Sketcher.Constraint("Angle", 0, Q("30 deg")),
    Sketcher.Constraint("Angle", 4, Q("75 deg")),
    Sketcher.Constraint("DistanceX", 1, 3, -1, 1, Q("9 mm")),
    Sketcher.Constraint("DistanceX", 9, 3, -1, 1, Q("20 mm")),
    Sketcher.Constraint("DistanceY", 7, 3, -1, 1, Q("56.645101 mm")),
])
sketch2.setExpression("Constraints[75]", "Params.sketch2_diameter")
sketch2.setExpression("Constraints[76]", "Params.sketch2_radius")
sketch2.setExpression("Constraints[77]", "Params.sketch2_radius2")
pad2 = body.newObject("PartDesign::Pad", "Pad001")
pad2.Profile = sketch2
pad2.setExpression("Length", "Params.pad2_length")
pad2.Reversed = True

doc.recompute()
